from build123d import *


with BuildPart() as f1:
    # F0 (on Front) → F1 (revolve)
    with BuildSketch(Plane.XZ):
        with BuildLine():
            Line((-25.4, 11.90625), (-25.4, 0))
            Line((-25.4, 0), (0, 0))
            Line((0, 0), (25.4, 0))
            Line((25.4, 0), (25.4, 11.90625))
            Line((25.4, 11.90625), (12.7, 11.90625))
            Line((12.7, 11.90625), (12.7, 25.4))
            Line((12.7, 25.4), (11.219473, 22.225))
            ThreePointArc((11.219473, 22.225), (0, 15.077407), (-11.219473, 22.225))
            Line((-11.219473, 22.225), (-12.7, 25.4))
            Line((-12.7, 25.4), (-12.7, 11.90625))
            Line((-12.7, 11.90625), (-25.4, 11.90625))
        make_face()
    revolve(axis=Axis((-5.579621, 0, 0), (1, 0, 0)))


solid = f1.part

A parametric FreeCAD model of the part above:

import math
import FreeCAD as App
import Part
import Sketcher
from FreeCAD import Vector
Q = App.Units.Quantity

doc = App.newDocument("Part")
body = doc.addObject("PartDesign::Body", "Body")

# Sketch on XZ plane
sketch1 = body.newObject("Sketcher::SketchObject", "Sketch")
sketch1.AttachmentSupport = (doc.getObject("XZ_Plane"), [""])
sketch1.MapMode = "FlatFace"
sketch1.addGeometry([
    Part.LineSegment(Vector(-25.4, 11.9, 0), Vector(-25.4, 0, 0)),  # 0
    Part.LineSegment(Vector(-25.4, 0, 0), Vector(25.4, 0, 0)),  # 1
    Part.LineSegment(Vector(25.4, 0, 0), Vector(25.4, 11.9, 0)),  # 2
    Part.LineSegment(Vector(25.4, 11.9, 0), Vector(12.7, 11.9, 0)),  # 3
    Part.LineSegment(Vector(12.7, 11.9, 0), Vector(12.7, 25.4, 0)),  # 4
    Part.LineSegment(Vector(12.7, 25.4, 0), Vector(11.2, 22.2, 0)),  # 5
    Part.ArcOfCircle(Part.Circle(Vector(0, 27.5, 0), Vector(0, 0, 1), 12.4), math.radians(-155), math.radians(-25)),  # 6
    Part.LineSegment(Vector(-11.2, 22.2, 0), Vector(-12.7, 25.4, 0)),  # 7
    Part.LineSegment(Vector(-12.7, 25.4, 0), Vector(-12.7, 11.9, 0)),  # 8
    Part.LineSegment(Vector(-12.7, 11.9, 0), Vector(-25.4, 11.9, 0)),  # 9
], False)
sketch1.addConstraint([
    Sketcher.Constraint("Coincident", 0, 2, 1, 1),
    Sketcher.Constraint("Coincident", 1, 2, 2, 1),
    Sketcher.Constraint("Coincident", 2, 2, 3, 1),
    Sketcher.Constraint("Coincident", 3, 2, 4, 1),
    Sketcher.Constraint("Coincident", 4, 2, 5, 1),
    Sketcher.Constraint("Tangent", 5, 2, 6, 2),
    Sketcher.Constraint("Tangent", 6, 1, 7, 1),
    Sketcher.Constraint("Coincident", 7, 2, 8, 1),
    Sketcher.Constraint("Coincident", 8, 2, 9, 1),
    Sketcher.Constraint("Coincident", 9, 2, 0, 1),
    Sketcher.Constraint("Vertical", 0),
    Sketcher.Constraint("Horizontal", 1),
    Sketcher.Constraint("Vertical", 2),
    Sketcher.Constraint("Horizontal", 3),
    Sketcher.Constraint("Vertical", 4),
    Sketcher.Constraint("Vertical", 8),
    Sketcher.Constraint("Horizontal", 9),
    Sketcher.Constraint("Symmetric", 0, 2, 1, 2, -1, 1),
    Sketcher.Constraint("Symmetric", 5, 2, 6, 1, -2),
    Sketcher.Constraint("Symmetric", 3, 2, 8, 2, -2),
    Sketcher.Constraint("DistanceX", 1, 1, 1, 2, Q("2 in")),
    Sketcher.Constraint("DistanceX", 3, 2, 3, 1, Q("0.5 in")),
    Sketcher.Constraint("DistanceY", -1, 1, 4, 2, Q("1 in")),
    Sketcher.Constraint("Angle", 5, Q("-115.000003 deg")),
    Sketcher.Constraint("DistanceY", 0, 2, 0, 1, Q("0.46875 in")),
    Sketcher.Constraint("DistanceY", -1, 1, 5, 2, Q("0.875 in")),
])
revolution = body.newObject("PartDesign::Revolution", "Revolution")
revolution.Profile = sketch1
revolution.ReferenceAxis = (sketch1, ["H_Axis"])
revolution.Angle = 360

doc.recompute()
